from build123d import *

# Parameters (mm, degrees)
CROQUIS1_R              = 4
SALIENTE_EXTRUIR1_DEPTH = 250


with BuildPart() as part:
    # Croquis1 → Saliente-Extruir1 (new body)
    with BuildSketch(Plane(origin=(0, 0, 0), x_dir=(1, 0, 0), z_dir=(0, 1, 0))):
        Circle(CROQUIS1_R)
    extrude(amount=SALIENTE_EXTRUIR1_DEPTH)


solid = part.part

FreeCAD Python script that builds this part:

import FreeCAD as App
import Part
import Sketcher
from FreeCAD import Vector
Q = App.Units.Quantity

doc = App.newDocument("Part")
params = doc.addObject("Spreadsheet::Sheet", "Params")
for row, (alias, value) in enumerate([
    ("sketch1_diameter", "8 mm"),
    ("pad1_length", "250 mm"),
], start=1):
    params.set(f"A{row}", alias)
    params.set(f"B{row}", "=" + value)
    params.setAlias(f"B{row}", alias)

body = doc.addObject("PartDesign::Body", "Body")

# Sketch on XZ plane
sketch1 = body.newObject("Sketcher::SketchObject", "Sketch")
sketch1.AttachmentSupport = (doc.getObject("XZ_Plane"), [""])
sketch1.MapMode = "FlatFace"
sketch1.addGeometry(Part.Circle(Vector(0, 0, 0), Vector(0, 0, 1), 4), False)
sketch1.addConstraint([
    Sketcher.Constraint("Coincident", 0, 3, -1, 1),
    Sketcher.Constraint("Diameter", 0, Q("8 mm")),
])
sketch1.setExpression("Constraints[1]", "Params.sketch1_diameter")
pad1 = body.newObject("PartDesign::Pad", "Pad")
pad1.Profile = sketch1
pad1.setExpression("Length", "Params.pad1_length")
pad1.Reversed = True

doc.recompute()
